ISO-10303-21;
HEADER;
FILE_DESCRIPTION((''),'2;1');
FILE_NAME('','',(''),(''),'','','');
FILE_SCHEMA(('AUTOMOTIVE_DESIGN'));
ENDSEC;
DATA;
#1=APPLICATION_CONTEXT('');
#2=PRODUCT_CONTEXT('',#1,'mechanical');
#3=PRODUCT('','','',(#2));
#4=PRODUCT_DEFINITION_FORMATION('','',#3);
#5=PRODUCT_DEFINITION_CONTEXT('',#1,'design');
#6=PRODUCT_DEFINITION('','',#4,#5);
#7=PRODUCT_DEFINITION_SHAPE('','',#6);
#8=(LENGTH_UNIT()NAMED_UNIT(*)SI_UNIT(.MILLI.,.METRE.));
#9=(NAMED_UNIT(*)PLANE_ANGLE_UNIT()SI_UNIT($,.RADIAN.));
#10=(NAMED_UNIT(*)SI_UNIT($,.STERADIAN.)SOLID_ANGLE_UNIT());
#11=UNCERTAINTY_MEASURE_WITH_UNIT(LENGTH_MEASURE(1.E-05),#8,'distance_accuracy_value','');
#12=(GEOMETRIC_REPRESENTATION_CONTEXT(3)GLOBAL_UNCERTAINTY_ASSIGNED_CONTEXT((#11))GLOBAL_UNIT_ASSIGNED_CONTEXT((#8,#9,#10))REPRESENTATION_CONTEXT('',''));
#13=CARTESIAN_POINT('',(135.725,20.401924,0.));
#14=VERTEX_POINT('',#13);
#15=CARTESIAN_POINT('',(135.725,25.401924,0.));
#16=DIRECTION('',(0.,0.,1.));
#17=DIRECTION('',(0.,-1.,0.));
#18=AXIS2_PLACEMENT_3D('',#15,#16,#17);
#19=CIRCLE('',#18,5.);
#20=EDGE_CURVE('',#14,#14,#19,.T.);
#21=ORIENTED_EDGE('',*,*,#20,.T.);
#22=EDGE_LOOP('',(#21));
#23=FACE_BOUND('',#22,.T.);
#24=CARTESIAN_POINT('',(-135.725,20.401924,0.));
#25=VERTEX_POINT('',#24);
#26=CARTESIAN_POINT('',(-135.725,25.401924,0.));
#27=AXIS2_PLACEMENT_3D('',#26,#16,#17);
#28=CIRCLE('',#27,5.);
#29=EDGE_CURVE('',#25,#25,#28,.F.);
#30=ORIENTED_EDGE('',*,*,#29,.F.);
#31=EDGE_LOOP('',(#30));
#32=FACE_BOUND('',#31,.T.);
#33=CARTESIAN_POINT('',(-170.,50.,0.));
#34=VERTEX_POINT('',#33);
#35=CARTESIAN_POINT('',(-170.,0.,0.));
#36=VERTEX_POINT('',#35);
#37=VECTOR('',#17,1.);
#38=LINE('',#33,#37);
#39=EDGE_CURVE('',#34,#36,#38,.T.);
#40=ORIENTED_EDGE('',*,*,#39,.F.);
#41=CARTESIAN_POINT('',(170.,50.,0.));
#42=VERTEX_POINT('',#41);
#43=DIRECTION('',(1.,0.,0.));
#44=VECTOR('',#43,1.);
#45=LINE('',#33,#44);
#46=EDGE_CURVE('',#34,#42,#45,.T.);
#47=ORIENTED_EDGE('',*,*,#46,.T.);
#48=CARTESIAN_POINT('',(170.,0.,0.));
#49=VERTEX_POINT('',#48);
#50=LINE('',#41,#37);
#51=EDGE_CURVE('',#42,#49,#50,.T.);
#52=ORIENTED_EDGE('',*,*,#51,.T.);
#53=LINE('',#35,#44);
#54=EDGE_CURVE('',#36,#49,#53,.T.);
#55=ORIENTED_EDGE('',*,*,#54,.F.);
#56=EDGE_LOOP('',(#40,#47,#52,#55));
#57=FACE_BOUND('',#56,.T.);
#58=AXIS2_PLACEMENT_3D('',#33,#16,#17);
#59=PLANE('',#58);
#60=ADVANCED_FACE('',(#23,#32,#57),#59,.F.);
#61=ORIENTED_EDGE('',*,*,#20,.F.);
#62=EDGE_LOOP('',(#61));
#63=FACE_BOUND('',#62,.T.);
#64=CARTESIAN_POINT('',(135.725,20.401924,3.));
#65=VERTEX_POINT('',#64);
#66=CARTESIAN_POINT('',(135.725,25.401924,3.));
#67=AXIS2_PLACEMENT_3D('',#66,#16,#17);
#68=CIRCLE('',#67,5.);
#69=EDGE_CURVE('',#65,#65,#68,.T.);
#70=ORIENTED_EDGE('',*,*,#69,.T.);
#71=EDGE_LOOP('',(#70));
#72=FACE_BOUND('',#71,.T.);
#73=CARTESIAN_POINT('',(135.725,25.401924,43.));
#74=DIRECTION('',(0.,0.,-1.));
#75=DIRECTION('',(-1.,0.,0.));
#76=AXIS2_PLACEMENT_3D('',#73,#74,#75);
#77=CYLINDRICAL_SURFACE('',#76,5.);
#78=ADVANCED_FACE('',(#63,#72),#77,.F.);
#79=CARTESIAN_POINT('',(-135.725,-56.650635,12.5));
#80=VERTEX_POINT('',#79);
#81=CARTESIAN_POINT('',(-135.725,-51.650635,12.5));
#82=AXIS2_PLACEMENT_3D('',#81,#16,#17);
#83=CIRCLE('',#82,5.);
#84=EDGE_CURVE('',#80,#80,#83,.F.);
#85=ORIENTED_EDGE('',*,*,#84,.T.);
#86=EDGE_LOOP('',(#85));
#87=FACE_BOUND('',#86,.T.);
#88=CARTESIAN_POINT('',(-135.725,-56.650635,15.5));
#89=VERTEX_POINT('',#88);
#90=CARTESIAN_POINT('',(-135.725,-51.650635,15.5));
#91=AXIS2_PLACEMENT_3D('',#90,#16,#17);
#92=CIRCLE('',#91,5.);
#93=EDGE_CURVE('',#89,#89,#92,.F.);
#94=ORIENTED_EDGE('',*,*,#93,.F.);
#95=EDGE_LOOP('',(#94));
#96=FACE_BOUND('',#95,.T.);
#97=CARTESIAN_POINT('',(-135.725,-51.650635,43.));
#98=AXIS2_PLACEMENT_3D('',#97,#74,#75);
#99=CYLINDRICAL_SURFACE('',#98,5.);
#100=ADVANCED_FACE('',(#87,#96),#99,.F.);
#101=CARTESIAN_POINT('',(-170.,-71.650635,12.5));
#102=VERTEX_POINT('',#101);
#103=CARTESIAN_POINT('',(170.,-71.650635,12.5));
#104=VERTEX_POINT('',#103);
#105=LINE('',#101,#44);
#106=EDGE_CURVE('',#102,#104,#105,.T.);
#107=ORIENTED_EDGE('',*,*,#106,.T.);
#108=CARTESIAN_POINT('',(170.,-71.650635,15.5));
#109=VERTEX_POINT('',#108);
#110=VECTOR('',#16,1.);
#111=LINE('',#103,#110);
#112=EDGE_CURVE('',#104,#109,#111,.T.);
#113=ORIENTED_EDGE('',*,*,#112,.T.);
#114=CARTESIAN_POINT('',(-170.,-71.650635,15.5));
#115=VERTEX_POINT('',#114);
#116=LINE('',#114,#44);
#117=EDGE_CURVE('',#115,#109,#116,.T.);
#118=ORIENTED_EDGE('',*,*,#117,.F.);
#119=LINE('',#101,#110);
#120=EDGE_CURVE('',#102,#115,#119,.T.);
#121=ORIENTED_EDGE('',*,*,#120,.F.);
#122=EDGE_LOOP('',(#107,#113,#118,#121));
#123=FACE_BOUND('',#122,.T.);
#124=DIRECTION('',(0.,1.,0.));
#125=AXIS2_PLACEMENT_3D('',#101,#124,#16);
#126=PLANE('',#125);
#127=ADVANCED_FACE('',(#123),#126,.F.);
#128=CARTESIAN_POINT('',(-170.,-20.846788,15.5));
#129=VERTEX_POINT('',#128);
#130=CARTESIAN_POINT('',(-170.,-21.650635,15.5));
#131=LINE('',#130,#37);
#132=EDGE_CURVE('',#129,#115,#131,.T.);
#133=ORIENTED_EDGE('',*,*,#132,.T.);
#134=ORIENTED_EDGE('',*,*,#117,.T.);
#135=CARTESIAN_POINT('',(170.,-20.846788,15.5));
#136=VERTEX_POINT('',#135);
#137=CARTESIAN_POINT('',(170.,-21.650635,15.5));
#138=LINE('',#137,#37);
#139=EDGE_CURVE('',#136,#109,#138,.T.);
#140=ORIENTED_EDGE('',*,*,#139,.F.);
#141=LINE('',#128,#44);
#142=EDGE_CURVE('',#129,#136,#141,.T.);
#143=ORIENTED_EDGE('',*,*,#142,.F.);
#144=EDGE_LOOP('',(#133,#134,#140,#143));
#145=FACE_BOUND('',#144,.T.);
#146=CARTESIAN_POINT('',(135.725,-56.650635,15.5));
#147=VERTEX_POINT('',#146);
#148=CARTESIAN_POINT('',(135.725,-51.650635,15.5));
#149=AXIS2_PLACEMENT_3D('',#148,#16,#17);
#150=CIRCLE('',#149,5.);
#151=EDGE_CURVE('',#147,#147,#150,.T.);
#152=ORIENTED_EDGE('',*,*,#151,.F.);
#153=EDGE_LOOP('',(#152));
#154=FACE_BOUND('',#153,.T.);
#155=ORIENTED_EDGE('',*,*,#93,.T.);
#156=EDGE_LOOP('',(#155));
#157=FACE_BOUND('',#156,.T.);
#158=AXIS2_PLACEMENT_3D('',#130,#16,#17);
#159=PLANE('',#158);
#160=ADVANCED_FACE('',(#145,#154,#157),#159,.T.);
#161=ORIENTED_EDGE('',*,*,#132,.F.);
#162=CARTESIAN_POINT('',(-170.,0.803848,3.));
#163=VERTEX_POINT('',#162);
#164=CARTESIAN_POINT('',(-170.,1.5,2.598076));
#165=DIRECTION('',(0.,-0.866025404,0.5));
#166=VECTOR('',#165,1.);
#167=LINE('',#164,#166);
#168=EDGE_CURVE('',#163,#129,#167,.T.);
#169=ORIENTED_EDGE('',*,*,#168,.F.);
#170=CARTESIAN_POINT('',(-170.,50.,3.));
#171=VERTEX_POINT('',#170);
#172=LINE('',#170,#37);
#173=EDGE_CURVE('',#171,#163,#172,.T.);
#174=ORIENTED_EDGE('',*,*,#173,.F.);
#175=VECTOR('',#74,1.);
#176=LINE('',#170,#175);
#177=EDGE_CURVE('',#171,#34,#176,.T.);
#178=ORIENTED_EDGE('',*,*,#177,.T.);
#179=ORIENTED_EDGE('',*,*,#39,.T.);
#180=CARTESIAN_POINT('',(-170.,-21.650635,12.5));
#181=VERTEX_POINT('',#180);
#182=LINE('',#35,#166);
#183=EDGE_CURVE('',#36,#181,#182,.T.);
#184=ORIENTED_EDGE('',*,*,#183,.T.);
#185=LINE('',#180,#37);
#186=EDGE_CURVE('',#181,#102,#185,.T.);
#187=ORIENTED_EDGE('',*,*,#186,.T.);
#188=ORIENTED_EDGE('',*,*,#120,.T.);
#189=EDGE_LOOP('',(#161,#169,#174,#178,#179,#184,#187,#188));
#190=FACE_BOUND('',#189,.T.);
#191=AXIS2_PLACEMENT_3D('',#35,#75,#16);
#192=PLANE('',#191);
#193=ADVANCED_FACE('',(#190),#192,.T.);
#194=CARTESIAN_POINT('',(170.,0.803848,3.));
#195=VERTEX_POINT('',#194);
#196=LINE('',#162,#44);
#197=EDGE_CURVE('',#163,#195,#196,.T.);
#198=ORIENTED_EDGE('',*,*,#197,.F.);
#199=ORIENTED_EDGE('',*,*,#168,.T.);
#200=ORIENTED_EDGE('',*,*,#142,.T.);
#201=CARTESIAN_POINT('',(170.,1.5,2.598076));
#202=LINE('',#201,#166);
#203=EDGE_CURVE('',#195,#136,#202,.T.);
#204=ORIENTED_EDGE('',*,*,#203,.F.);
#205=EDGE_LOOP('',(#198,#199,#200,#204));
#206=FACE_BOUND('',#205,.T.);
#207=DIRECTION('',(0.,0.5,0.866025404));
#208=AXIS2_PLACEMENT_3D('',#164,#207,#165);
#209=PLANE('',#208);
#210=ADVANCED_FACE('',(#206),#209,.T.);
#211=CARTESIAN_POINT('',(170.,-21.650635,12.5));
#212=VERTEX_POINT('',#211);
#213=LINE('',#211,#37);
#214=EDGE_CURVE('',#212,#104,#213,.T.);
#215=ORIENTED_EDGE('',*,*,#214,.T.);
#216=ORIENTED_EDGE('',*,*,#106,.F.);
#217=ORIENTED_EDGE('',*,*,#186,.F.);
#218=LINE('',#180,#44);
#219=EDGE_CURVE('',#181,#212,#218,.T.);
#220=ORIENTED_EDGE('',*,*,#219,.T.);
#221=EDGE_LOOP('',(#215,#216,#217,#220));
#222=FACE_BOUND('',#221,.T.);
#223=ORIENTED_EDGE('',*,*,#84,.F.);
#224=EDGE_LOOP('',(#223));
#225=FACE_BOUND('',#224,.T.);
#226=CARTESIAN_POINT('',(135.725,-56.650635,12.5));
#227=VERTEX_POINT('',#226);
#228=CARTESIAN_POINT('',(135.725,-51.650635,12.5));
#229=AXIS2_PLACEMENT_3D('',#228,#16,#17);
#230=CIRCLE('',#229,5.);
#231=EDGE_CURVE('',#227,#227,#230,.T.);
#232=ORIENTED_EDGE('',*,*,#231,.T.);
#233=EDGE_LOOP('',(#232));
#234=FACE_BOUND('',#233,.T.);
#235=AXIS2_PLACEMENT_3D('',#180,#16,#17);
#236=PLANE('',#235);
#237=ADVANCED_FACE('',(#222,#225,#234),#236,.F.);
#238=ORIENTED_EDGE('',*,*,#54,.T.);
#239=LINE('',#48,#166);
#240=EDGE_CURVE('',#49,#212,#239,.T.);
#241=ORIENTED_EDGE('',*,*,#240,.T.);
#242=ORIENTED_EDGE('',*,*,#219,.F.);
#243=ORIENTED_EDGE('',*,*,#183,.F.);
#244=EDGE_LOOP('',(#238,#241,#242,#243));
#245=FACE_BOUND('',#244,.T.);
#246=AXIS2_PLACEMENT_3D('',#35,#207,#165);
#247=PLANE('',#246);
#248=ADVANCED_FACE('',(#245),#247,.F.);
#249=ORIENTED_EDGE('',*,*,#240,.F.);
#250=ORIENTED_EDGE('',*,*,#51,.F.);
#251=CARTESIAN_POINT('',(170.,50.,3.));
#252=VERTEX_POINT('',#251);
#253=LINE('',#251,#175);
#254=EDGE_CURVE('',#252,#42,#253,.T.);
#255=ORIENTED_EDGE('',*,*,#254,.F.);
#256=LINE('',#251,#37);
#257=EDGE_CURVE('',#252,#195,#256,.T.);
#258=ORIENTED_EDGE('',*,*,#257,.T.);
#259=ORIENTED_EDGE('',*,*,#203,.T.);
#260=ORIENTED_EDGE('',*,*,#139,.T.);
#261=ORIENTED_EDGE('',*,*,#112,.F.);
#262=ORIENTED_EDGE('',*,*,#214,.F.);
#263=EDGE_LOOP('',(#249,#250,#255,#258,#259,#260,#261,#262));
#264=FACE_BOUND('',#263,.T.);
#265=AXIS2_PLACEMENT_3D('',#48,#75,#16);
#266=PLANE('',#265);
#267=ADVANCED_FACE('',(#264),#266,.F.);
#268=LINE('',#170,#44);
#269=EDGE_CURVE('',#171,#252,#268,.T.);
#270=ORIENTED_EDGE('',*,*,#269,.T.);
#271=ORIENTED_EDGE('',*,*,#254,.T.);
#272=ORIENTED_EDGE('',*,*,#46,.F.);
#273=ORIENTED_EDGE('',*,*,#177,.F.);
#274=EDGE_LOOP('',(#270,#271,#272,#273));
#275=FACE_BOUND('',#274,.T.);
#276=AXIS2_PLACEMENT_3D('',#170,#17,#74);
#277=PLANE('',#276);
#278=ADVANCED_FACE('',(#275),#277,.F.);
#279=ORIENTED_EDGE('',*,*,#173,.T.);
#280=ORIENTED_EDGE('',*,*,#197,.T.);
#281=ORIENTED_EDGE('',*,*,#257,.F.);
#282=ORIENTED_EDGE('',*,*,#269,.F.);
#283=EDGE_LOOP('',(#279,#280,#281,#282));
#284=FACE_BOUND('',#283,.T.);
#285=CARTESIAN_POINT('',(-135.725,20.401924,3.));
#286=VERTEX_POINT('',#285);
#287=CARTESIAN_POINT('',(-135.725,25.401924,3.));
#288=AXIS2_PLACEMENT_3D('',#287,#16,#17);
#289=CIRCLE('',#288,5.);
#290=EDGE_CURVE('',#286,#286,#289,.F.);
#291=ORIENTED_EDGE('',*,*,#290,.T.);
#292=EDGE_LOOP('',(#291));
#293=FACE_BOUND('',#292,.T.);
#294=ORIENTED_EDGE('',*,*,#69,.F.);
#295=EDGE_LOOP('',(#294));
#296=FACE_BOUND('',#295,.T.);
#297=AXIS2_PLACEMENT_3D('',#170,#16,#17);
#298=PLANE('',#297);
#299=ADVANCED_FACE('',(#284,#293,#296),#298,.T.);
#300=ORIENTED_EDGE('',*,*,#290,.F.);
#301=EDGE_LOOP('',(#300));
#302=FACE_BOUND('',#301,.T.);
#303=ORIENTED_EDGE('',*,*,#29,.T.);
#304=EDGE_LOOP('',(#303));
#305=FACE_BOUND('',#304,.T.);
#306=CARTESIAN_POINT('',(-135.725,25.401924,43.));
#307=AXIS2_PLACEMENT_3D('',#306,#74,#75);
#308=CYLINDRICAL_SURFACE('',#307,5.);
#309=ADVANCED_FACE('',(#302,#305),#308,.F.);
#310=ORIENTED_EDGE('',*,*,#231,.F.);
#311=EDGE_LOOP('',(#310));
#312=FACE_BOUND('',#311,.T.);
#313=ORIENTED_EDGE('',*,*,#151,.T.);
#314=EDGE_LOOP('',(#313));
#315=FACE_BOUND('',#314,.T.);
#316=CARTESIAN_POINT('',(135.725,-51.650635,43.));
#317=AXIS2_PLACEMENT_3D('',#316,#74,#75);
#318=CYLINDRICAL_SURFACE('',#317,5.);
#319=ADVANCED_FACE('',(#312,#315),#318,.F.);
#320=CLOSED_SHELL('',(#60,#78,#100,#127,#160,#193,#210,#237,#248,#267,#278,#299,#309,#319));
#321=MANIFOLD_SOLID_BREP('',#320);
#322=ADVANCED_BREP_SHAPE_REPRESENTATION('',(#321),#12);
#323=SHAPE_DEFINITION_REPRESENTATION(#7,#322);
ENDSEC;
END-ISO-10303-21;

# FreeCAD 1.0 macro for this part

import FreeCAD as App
import Part
import Sketcher
Q = App.Units.Quantity


def add_polygon(sketch, points):
    """Adds a closed chain of lines whose ends are joined by coincident constraints."""
    first, n = sketch.GeometryCount, len(points)
    for a, b in zip(points, points[1:] + points[:1]):
        sketch.addGeometry(Part.LineSegment(App.Vector(*a, 0), App.Vector(*b, 0)), False)
    for i in range(n):
        sketch.addConstraint(Sketcher.Constraint("Coincident", first + i, 2, first + (i + 1) % n, 1))

doc = App.newDocument("Part")
params = doc.addObject("Spreadsheet::Sheet", "Params")
for row, (alias, value) in enumerate([
    ("sketch1_width", "50 mm"),
    ("sketch1_height", "3 mm"),
    ("sketch1_length", "25 mm"),
    ("pad1_length", "170 mm"),
    ("pad1_length2", "170 mm"),
    ("sketch2_diameter", "10 mm"),
    ("pocket1_length", "50 mm"),
], start=1):
    params.set(f"A{row}", alias)
    params.set(f"B{row}", "=" + value)
    params.setAlias(f"B{row}", alias)

body = doc.addObject("PartDesign::Body", "Body")

sketch1 = doc.addObject("Sketcher::SketchObject", "Sketch")
body.addObject(sketch1)
sketch1.AttachmentSupport = (doc.YZ_Plane, [""])
sketch1.MapMode = "FlatFace"
add_polygon(sketch1, [(0, 0), (50, 0), (50, 3), (0.8, 3), (-20.8, 15.5), (-71.7, 15.5), (-71.7, 12.5), (-21.7, 12.5)])
sketch1.addConstraint([
    Sketcher.Constraint("Horizontal", 0),
    Sketcher.Constraint("Vertical", 1),
    Sketcher.Constraint("Horizontal", 2),
    Sketcher.Constraint("Horizontal", 4),
    Sketcher.Constraint("Vertical", 5),
    Sketcher.Constraint("Horizontal", 6),
    Sketcher.Constraint("Coincident", 7, 2, -1, 1),
    Sketcher.Constraint("Parallel", 3, 7),
    Sketcher.Constraint("Equal", 0, 6),
    Sketcher.Constraint("Equal", 1, 5),
    Sketcher.Constraint("DistanceX", 0, 1, 0, 2, 50.0),
    Sketcher.Constraint("DistanceY", 1, 1, 1, 2, 3.0),
    Sketcher.Constraint("Angle", 3, Q("150 deg")),
    Sketcher.Constraint("Distance", 3, 25.0),
    Sketcher.Constraint("DistanceX", 2, 2, 2, 1, 49.196152),
])
sketch1.setExpression("Constraints[18]", "Params.sketch1_width")
sketch1.setExpression("Constraints[19]", "Params.sketch1_height")
sketch1.setExpression("Constraints[21]", "Params.sketch1_length")
pad1 = doc.addObject("PartDesign::Pad", "Pad")
body.addObject(pad1)
pad1.Profile = sketch1
pad1.Type = "TwoLengths"
pad1.setExpression("Length", "Params.pad1_length")
pad1.setExpression("Length2", "Params.pad1_length2")

sketch2 = doc.addObject("Sketcher::SketchObject", "Sketch001")
body.addObject(sketch2)
sketch2.AttachmentSupport = (doc.XY_Plane, [""])
sketch2.MapMode = "FlatFace"
sketch2.AttachmentOffset = App.Placement(App.Vector(0, 0, -7), App.Rotation())
sketch2.addGeometry([
    Part.Circle(App.Vector(-136, 25, 0), App.Vector(0, 0, 1), 5),
    Part.Circle(App.Vector(-136, -52, 0), App.Vector(0, 0, 1), 5),
], False)
sketch2.addConstraint([
    Sketcher.Constraint("Equal", 0, 1),
    Sketcher.Constraint("Vertical", 0, 3, 1, 3),
    Sketcher.Constraint("Diameter", 0, 10.0),
    Sketcher.Constraint("DistanceX", 0, 3, -1, 1, 135.725),
    Sketcher.Constraint("DistanceY", 1, 3, 0, 3, 77.052559),
    Sketcher.Constraint("DistanceY", -1, 1, 0, 3, 25.401924),
])
sketch2.setExpression("Constraints[2]", "Params.sketch2_diameter")
pocket1 = doc.addObject("PartDesign::Pocket", "Pocket")
body.addObject(pocket1)
pocket1.Profile = sketch2
pocket1.setExpression("Length", "Params.pocket1_length")
pocket1.Reversed = True
doc.recompute()

mirrored = doc.addObject("PartDesign::Mirrored", "Mirrored")
body.addObject(mirrored)
mirrored.Originals = [pocket1]
mirrored.MirrorPlane = (doc.YZ_Plane, [""])
body.Tip = mirrored

doc.recompute()
